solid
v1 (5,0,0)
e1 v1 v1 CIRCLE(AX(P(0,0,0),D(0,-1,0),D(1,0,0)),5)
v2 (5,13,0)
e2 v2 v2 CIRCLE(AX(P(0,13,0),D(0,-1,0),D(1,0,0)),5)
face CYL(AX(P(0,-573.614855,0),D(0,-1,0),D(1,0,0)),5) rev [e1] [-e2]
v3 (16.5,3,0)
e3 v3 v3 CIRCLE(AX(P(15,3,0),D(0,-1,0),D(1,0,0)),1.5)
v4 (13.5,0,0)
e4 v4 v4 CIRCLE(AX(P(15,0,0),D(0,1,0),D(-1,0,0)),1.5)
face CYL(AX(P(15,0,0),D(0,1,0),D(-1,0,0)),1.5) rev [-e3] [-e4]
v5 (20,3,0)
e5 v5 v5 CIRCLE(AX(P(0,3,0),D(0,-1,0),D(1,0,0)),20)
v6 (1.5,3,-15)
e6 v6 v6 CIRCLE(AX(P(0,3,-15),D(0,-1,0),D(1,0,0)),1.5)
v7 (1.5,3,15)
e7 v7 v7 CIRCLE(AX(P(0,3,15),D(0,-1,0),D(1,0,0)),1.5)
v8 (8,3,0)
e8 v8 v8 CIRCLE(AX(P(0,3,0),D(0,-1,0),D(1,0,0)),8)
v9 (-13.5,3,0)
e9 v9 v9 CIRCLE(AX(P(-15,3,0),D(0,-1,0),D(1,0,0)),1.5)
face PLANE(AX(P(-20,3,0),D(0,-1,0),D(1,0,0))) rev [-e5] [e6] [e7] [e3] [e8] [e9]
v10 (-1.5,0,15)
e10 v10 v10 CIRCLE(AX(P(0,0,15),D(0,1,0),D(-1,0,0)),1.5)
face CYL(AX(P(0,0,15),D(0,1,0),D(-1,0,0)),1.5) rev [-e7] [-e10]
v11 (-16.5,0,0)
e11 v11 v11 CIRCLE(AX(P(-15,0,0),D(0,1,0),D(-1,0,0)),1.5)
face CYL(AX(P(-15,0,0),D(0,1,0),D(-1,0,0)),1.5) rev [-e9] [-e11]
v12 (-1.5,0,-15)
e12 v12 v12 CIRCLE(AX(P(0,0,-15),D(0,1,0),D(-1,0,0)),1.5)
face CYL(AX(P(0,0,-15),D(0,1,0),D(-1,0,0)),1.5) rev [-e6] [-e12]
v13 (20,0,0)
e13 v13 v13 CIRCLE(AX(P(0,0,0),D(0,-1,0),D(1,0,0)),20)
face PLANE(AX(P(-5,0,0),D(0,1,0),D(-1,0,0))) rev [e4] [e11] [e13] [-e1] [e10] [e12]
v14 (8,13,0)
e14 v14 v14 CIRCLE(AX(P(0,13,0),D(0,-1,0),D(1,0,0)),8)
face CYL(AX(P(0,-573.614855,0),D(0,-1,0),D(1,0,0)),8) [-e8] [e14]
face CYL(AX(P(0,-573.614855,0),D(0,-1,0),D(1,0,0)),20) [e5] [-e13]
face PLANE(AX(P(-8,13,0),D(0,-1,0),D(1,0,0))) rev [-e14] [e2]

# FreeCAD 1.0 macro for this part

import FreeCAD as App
import Part
import Sketcher
Q = App.Units.Quantity

doc = App.newDocument("Part")
body = doc.addObject("PartDesign::Body", "Body")

# Sketch on XY plane
sketch1 = body.newObject("Sketcher::SketchObject", "Sketch")
sketch1.AttachmentSupport = (doc.getObject("XY_Plane"), [""])
sketch1.MapMode = "FlatFace"
sketch1.addGeometry(Part.LineSegment(App.Vector(-20, 0, 0), App.Vector(-5, 0, 0)), False)
sketch1.addGeometry(Part.LineSegment(App.Vector(-5, 0, 0), App.Vector(-5, 13, 0)), False)
sketch1.addGeometry(Part.LineSegment(App.Vector(-5, 13, 0), App.Vector(-8, 13, 0)), False)
sketch1.addGeometry(Part.LineSegment(App.Vector(-8, 13, 0), App.Vector(-8, 3, 0)), False)
sketch1.addGeometry(Part.LineSegment(App.Vector(-8, 3, 0), App.Vector(-20, 3, 0)), False)
sketch1.addGeometry(Part.LineSegment(App.Vector(-20, 3, 0), App.Vector(-20, 0, 0)), False)
sketch1.addConstraint(Sketcher.Constraint("Coincident", 0, 2, 1, 1))
sketch1.addConstraint(Sketcher.Constraint("Coincident", 1, 2, 2, 1))
sketch1.addConstraint(Sketcher.Constraint("Coincident", 2, 2, 3, 1))
sketch1.addConstraint(Sketcher.Constraint("Coincident", 3, 2, 4, 1))
sketch1.addConstraint(Sketcher.Constraint("Coincident", 4, 2, 5, 1))
sketch1.addConstraint(Sketcher.Constraint("Coincident", 5, 2, 0, 1))
sketch1.addConstraint(Sketcher.Constraint("Horizontal", 0))
sketch1.addConstraint(Sketcher.Constraint("Vertical", 1))
sketch1.addConstraint(Sketcher.Constraint("Horizontal", 2))
sketch1.addConstraint(Sketcher.Constraint("Vertical", 3))
sketch1.addConstraint(Sketcher.Constraint("Horizontal", 4))
sketch1.addConstraint(Sketcher.Constraint("Vertical", 5))
sketch1.addConstraint(Sketcher.Constraint("PointOnObject", 0, 2, -1))
sketch1.addConstraint(Sketcher.Constraint("Equal", 2, 5))
sketch1.addConstraint(Sketcher.Constraint("DistanceX", 0, 1, 0, 2, Q("15 mm")))
sketch1.addConstraint(Sketcher.Constraint("DistanceX", 2, 2, 2, 1, Q("3 mm")))
sketch1.addConstraint(Sketcher.Constraint("DistanceY", 1, 1, 1, 2, Q("13 mm")))
sketch1.addConstraint(Sketcher.Constraint("DistanceX", 0, 2, -1, 1, Q("5 mm")))
revolution = body.newObject("PartDesign::Revolution", "Revolution")
revolution.Profile = sketch1
revolution.ReferenceAxis = (sketch1, ["V_Axis"])
revolution.Angle = 360

# Sketch on XZ plane
sketch2 = body.newObject("Sketcher::SketchObject", "Sketch001")
sketch2.AttachmentSupport = (doc.getObject("XZ_Plane"), [""])
sketch2.MapMode = "FlatFace"
sketch2.AttachmentOffset = App.Placement(App.Vector(0, 0, -3), App.Rotation())
sketch2.addGeometry(Part.Circle(App.Vector(0, -15, 0), App.Vector(0, 0, 1), 1.5), False)
sketch2.addGeometry(Part.Circle(App.Vector(15, 0, 0), App.Vector(0, 0, 1), 1.5), False)
sketch2.addGeometry(Part.Circle(App.Vector(0, 15, 0), App.Vector(0, 0, 1), 1.5), False)
sketch2.addGeometry(Part.Circle(App.Vector(-15, 0, 0), App.Vector(0, 0, 1), 1.5), False)
sketch2.addConstraint(Sketcher.Constraint("Equal", 0, 1))
sketch2.addConstraint(Sketcher.Constraint("Equal", 1, 2))
sketch2.addConstraint(Sketcher.Constraint("Equal", 2, 3))
sketch2.addConstraint(Sketcher.Constraint("Symmetric", 0, 3, 2, 3, -1, 1))
sketch2.addConstraint(Sketcher.Constraint("Symmetric", 1, 3, 3, 3, -1, 1))
sketch2.addConstraint(Sketcher.Constraint("PointOnObject", 0, 3, -2))
sketch2.addConstraint(Sketcher.Constraint("PointOnObject", 1, 3, -1))
sketch2.addConstraint(Sketcher.Constraint("Diameter", 0, Q("3 mm")))
sketch2.addConstraint(Sketcher.Constraint("DistanceY", 0, 3, -1, 1, Q("15 mm")))
sketch2.addConstraint(Sketcher.Constraint("DistanceX", -1, 1, 1, 3, Q("15 mm")))
pocket1 = body.newObject("PartDesign::Pocket", "Pocket")
pocket1.Profile = sketch2
pocket1.Type = "ThroughAll"
pocket1.Midplane = True

doc.recompute()
